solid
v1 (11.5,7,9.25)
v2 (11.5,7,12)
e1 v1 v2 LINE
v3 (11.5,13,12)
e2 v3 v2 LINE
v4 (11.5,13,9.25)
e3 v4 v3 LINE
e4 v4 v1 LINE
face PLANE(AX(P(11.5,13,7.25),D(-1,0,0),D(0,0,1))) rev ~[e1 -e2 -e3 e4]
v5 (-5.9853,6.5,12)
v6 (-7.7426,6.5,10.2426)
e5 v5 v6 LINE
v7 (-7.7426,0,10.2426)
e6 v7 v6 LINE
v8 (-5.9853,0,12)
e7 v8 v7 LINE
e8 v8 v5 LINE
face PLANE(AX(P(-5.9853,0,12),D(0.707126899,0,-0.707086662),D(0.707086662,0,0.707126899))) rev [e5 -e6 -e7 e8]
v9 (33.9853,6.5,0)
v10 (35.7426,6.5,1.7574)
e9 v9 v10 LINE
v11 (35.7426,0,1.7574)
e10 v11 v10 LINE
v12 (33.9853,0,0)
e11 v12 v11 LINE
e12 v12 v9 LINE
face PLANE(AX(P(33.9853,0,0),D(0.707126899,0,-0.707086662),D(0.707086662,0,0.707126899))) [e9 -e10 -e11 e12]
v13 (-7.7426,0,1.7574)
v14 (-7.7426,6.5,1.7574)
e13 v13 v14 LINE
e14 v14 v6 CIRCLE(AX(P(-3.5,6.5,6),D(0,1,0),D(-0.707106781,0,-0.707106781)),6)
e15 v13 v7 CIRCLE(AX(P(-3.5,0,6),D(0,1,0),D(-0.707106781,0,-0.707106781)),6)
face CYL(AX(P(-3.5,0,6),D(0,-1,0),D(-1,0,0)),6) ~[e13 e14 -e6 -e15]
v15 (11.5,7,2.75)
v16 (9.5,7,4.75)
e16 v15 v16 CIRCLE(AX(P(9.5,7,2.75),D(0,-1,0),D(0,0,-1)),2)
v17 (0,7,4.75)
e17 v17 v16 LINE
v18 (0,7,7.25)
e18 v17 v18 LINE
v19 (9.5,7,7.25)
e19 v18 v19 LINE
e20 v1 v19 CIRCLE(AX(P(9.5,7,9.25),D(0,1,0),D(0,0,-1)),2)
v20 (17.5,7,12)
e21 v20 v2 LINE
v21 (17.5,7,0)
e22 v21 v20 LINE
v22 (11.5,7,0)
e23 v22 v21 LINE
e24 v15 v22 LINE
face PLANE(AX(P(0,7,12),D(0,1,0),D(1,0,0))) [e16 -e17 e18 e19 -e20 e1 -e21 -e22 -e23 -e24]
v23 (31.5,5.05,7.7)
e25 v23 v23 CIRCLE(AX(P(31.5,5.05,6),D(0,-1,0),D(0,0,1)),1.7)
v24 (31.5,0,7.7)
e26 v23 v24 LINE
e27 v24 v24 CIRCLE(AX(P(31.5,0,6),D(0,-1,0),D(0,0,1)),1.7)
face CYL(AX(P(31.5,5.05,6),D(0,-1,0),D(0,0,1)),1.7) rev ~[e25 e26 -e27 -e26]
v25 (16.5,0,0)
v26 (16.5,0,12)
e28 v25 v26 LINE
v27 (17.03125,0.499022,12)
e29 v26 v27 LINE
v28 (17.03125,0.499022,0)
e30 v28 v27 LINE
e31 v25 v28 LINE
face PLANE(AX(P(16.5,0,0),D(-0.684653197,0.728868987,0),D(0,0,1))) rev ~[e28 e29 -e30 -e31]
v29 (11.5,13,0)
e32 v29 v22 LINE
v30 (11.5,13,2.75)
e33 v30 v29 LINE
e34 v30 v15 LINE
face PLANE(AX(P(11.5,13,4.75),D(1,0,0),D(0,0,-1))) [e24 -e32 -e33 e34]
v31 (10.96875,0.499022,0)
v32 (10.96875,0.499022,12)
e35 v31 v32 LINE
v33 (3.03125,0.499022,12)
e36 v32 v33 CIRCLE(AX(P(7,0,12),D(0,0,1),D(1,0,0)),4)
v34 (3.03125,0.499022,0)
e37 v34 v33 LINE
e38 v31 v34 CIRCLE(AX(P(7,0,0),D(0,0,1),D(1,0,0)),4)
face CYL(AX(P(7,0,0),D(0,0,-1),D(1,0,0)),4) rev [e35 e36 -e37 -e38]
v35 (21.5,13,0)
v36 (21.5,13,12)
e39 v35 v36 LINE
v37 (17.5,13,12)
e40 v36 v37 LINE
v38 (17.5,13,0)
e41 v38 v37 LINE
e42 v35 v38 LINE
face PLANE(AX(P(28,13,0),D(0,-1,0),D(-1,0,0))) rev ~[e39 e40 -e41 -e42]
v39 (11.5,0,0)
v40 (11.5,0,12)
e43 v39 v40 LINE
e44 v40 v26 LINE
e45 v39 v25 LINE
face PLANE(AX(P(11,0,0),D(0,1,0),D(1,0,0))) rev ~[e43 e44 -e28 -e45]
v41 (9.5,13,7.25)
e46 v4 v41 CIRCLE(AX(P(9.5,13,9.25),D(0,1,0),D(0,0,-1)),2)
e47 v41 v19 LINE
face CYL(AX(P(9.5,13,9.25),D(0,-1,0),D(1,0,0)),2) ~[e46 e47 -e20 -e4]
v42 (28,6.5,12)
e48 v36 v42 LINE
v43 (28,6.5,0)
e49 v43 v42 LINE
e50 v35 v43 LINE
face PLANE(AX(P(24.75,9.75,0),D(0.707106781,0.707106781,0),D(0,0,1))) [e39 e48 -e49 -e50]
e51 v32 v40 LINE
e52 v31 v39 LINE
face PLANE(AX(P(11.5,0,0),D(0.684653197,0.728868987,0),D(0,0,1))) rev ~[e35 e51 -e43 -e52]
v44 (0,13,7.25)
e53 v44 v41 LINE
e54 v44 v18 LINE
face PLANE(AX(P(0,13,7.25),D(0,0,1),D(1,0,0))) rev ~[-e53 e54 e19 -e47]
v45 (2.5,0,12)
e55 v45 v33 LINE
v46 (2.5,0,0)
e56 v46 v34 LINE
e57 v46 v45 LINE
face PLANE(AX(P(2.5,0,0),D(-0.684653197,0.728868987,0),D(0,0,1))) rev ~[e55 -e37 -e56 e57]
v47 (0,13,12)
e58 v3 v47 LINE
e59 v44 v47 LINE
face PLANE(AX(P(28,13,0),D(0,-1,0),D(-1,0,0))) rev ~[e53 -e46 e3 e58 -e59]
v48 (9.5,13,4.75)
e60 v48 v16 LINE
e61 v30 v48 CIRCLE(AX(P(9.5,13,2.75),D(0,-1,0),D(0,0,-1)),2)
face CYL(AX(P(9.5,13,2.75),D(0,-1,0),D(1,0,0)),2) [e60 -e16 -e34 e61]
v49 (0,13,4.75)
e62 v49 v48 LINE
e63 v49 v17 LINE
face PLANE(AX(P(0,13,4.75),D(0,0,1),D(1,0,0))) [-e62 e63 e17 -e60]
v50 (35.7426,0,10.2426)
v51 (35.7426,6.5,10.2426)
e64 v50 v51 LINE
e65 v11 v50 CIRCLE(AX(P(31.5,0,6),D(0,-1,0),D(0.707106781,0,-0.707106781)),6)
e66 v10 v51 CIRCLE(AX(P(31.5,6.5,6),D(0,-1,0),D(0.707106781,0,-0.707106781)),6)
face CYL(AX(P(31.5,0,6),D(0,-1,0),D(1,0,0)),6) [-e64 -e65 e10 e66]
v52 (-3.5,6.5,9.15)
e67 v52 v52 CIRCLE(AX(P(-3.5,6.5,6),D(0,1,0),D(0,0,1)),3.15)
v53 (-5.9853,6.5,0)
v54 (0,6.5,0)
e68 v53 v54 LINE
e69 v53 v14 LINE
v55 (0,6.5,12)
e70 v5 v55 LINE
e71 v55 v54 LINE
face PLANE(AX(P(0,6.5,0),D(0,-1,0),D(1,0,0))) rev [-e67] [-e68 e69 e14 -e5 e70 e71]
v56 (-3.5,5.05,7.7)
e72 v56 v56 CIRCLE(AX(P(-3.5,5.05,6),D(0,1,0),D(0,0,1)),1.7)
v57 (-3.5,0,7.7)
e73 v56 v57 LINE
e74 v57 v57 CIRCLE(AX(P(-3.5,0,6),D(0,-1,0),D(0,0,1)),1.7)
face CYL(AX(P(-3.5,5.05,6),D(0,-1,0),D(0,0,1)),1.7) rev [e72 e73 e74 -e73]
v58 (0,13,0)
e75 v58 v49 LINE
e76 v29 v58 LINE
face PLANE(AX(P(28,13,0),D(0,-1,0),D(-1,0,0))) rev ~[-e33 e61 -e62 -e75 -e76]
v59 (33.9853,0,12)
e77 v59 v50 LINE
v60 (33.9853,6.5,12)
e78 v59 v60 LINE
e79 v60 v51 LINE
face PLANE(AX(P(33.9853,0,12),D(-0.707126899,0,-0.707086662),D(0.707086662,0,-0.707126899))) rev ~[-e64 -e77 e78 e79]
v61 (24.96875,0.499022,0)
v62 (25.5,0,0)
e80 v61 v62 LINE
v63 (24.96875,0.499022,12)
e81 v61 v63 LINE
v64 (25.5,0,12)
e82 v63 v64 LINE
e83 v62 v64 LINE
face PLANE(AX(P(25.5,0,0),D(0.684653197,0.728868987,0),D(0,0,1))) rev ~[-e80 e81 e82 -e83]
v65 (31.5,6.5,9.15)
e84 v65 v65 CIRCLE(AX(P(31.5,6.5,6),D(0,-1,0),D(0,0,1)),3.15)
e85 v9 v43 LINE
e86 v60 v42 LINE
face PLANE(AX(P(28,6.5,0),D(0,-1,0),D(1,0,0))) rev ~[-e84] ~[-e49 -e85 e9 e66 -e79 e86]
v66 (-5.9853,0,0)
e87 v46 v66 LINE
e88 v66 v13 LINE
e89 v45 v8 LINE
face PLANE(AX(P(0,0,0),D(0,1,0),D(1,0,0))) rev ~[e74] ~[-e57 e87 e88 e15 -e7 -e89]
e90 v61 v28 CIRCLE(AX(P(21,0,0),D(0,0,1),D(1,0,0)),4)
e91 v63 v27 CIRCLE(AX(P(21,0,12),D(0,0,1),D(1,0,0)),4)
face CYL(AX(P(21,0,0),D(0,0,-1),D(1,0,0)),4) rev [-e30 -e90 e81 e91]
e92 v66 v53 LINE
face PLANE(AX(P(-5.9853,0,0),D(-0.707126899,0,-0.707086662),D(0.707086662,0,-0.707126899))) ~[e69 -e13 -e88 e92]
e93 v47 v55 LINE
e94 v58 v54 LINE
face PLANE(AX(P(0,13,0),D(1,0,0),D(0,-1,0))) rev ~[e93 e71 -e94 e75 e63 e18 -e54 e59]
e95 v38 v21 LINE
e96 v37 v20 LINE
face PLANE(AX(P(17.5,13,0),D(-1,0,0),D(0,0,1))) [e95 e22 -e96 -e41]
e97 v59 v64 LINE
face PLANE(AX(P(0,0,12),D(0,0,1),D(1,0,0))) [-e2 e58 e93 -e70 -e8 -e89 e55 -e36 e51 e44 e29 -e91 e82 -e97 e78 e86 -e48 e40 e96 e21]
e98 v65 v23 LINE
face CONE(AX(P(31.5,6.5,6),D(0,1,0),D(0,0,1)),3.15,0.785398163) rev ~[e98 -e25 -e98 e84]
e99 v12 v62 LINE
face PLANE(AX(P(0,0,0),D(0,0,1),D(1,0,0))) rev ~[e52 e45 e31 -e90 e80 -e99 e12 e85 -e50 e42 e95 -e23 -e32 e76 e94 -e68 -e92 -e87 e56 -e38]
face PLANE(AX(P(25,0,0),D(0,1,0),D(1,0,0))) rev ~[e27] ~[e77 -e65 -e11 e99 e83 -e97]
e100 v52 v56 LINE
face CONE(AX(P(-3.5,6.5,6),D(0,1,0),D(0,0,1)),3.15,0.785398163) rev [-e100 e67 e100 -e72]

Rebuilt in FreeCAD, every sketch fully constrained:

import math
import FreeCAD as App
import Part
import Sketcher


def edges_at(feature, points):
    """Names of the edges that pass closest to the given points."""
    edges = feature.Shape.Edges
    near = lambda p: min(range(len(edges)), key=lambda i: edges[i].distToShape(Part.Vertex(*p))[0])
    return sorted({f"Edge{near(p) + 1}" for p in points})


def add_polygon(sketch, points):
    """Adds a closed chain of lines whose ends are joined by coincident constraints."""
    first, n = sketch.GeometryCount, len(points)
    for a, b in zip(points, points[1:] + points[:1]):
        sketch.addGeometry(Part.LineSegment(App.Vector(*a, 0), App.Vector(*b, 0)), False)
    for i in range(n):
        sketch.addConstraint(Sketcher.Constraint("Coincident", first + i, 2, first + (i + 1) % n, 1))

doc = App.newDocument("Part")
body = doc.addObject("PartDesign::Body", "Body")

sketch1 = body.newObject("Sketcher::SketchObject", "Sketch")
sketch1.AttachmentSupport = (doc.getObject("XY_Plane"), [""])
sketch1.MapMode = "FlatFace"
sketch1.addGeometry(Part.ArcOfCircle(Part.Circle(App.Vector(21, 0, 0), App.Vector(0, 0, 1), 4), math.radians(0), math.radians(180)), False)
sketch1.addGeometry(Part.LineSegment(App.Vector(25, 0, 0), App.Vector(28, 0, 0)), False)
sketch1.addGeometry(Part.LineSegment(App.Vector(28, 0, 0), App.Vector(28, 13, 0)), False)
sketch1.addGeometry(Part.LineSegment(App.Vector(28, 13, 0), App.Vector(0, 13, 0)), False)
sketch1.addGeometry(Part.LineSegment(App.Vector(0, 13, 0), App.Vector(0, 0, 0)), False)
sketch1.addGeometry(Part.LineSegment(App.Vector(0, 0, 0), App.Vector(3, 0, 0)), False)
sketch1.addGeometry(Part.ArcOfCircle(Part.Circle(App.Vector(7, 0, 0), App.Vector(0, 0, 1), 4), math.radians(0), math.radians(180)), False)
sketch1.addGeometry(Part.LineSegment(App.Vector(11, 0, 0), App.Vector(17, 0, 0)), False)
sketch1.addConstraint(Sketcher.Constraint("Coincident", 0, 1, 1, 1))
sketch1.addConstraint(Sketcher.Constraint("Coincident", 1, 2, 2, 1))
sketch1.addConstraint(Sketcher.Constraint("Coincident", 2, 2, 3, 1))
sketch1.addConstraint(Sketcher.Constraint("Coincident", 3, 2, 4, 1))
sketch1.addConstraint(Sketcher.Constraint("Coincident", 4, 2, 5, 1))
sketch1.addConstraint(Sketcher.Constraint("Coincident", 5, 2, 6, 2))
sketch1.addConstraint(Sketcher.Constraint("Coincident", 6, 1, 7, 1))
sketch1.addConstraint(Sketcher.Constraint("Coincident", 7, 2, 0, 2))
sketch1.addConstraint(Sketcher.Constraint("Horizontal", 1))
sketch1.addConstraint(Sketcher.Constraint("Vertical", 2))
sketch1.addConstraint(Sketcher.Constraint("Horizontal", 3))
sketch1.addConstraint(Sketcher.Constraint("Vertical", 4))
sketch1.addConstraint(Sketcher.Constraint("Horizontal", 5))
sketch1.addConstraint(Sketcher.Constraint("Horizontal", 7))
sketch1.addConstraint(Sketcher.Constraint("Coincident", 4, 2, -1, 1))
sketch1.addConstraint(Sketcher.Constraint("Equal", 0, 6))
sketch1.addConstraint(Sketcher.Constraint("PointOnObject", 0, 3, -1))
sketch1.addConstraint(Sketcher.Constraint("PointOnObject", 6, 3, -1))
sketch1.addConstraint(Sketcher.Constraint("PointOnObject", 0, 1, -1))
sketch1.addConstraint(Sketcher.Constraint("PointOnObject", 6, 1, -1))
sketch1.addConstraint(Sketcher.Constraint("Equal", 1, 5))
sketch1.addConstraint(Sketcher.Constraint("Radius", 0, 4.0))
sketch1.addConstraint(Sketcher.Constraint("DistanceX", 3, 2, 3, 1, 28.0))
sketch1.addConstraint(Sketcher.Constraint("DistanceY", 2, 1, 2, 2, 13.0))
sketch1.addConstraint(Sketcher.Constraint("DistanceX", -1, 1, 6, 3, 7.0))
pad1 = body.newObject("PartDesign::Pad", "Pad")
pad1.Profile = sketch1
pad1.Length = 12
doc.recompute()

chamfer = body.newObject("PartDesign::Chamfer", "Chamfer")
chamfer.Base = (pad1, edges_at(pad1, [(28, 13, 6)]))
chamfer.Size = 6.5

sketch2 = body.newObject("Sketcher::SketchObject", "Sketch001")
sketch2.AttachmentSupport = (doc.getObject("XZ_Plane"), [""])
sketch2.MapMode = "FlatFace"
sketch2.AttachmentOffset = App.Placement(App.Vector(0, 0, -13), App.Rotation())
add_polygon(sketch2, [(11.5, 4.8), (0, 4.8), (0, 7.2), (11.5, 7.2), (11.5, 12), (17.5, 12), (17.5, 0), (11.5, 0)])
sketch2.addConstraint(Sketcher.Constraint("Horizontal", 0))
sketch2.addConstraint(Sketcher.Constraint("Vertical", 1))
sketch2.addConstraint(Sketcher.Constraint("Horizontal", 2))
sketch2.addConstraint(Sketcher.Constraint("Vertical", 3))
sketch2.addConstraint(Sketcher.Constraint("Horizontal", 4))
sketch2.addConstraint(Sketcher.Constraint("Vertical", 5))
sketch2.addConstraint(Sketcher.Constraint("Horizontal", 6))
sketch2.addConstraint(Sketcher.Constraint("Vertical", 7))
sketch2.addConstraint(Sketcher.Constraint("PointOnObject", 0, 2, -2))
sketch2.addConstraint(Sketcher.Constraint("PointOnObject", 5, 2, -1))
sketch2.addConstraint(Sketcher.Constraint("Vertical", 3, 2, 6, 2))
sketch2.addConstraint(Sketcher.Constraint("Equal", 3, 7))
sketch2.addConstraint(Sketcher.Constraint("DistanceX", 4, 1, 4, 2, 6.0))
sketch2.addConstraint(Sketcher.Constraint("DistanceX", 0, 2, 0, 1, 11.5))
sketch2.addConstraint(Sketcher.Constraint("DistanceY", 1, 1, 1, 2, 2.5))
sketch2.addConstraint(Sketcher.Constraint("DistanceY", 5, 2, 5, 1, 12.0))
pocket1 = body.newObject("PartDesign::Pocket", "Pocket")
pocket1.Profile = sketch2
pocket1.Length = 6
pocket1.Reversed = True
doc.recompute()

fillet = body.newObject("PartDesign::Fillet", "Fillet")
fillet.Base = (pocket1, edges_at(pocket1, [(11.5, 10, 4.75), (11.5, 10, 7.25)]))
fillet.Radius = 2
doc.recompute()

chamfer2 = body.newObject("PartDesign::Chamfer", "Chamfer001")
chamfer2.Base = (fillet, edges_at(fillet, [
    (3, 0, 6),
    (11, 0, 6),
    (17, 0, 6),
    (25, 0, 6),
]))
chamfer2.Size = 0.5

sketch3 = body.newObject("Sketcher::SketchObject", "Sketch002")
sketch3.AttachmentSupport = (doc.getObject("XZ_Plane"), [""])
sketch3.MapMode = "FlatFace"
sketch3.addGeometry(Part.LineSegment(App.Vector(35.7, 10.2, 0), App.Vector(34, 12, 0)), False)
sketch3.addGeometry(Part.LineSegment(App.Vector(34, 12, 0), App.Vector(28, 12, 0)), False)
sketch3.addGeometry(Part.LineSegment(App.Vector(28, 12, 0), App.Vector(28, 0, 0)), False)
sketch3.addGeometry(Part.LineSegment(App.Vector(28, 0, 0), App.Vector(34, 0, 0)), False)
sketch3.addGeometry(Part.LineSegment(App.Vector(34, 0, 0), App.Vector(35.7, 1.8, 0)), False)
sketch3.addGeometry(Part.ArcOfCircle(Part.Circle(App.Vector(31.5, 6, 0), App.Vector(0, 0, 1), 6), math.radians(-45), math.radians(45)), False)
sketch3.addConstraint(Sketcher.Constraint("Coincident", 0, 2, 1, 1))
sketch3.addConstraint(Sketcher.Constraint("Coincident", 1, 2, 2, 1))
sketch3.addConstraint(Sketcher.Constraint("Coincident", 2, 2, 3, 1))
sketch3.addConstraint(Sketcher.Constraint("Coincident", 3, 2, 4, 1))
sketch3.addConstraint(Sketcher.Constraint("Tangent", 4, 2, 5, 1))
sketch3.addConstraint(Sketcher.Constraint("Tangent", 5, 2, 0, 1))
sketch3.addConstraint(Sketcher.Constraint("Horizontal", 1))
sketch3.addConstraint(Sketcher.Constraint("Vertical", 2))
sketch3.addConstraint(Sketcher.Constraint("Horizontal", 3))
sketch3.addConstraint(Sketcher.Constraint("PointOnObject", 2, 2, -1))
sketch3.addConstraint(Sketcher.Constraint("Perpendicular", 0, 4))
sketch3.addConstraint(Sketcher.Constraint("Vertical", 0, 2, 3, 2))
sketch3.addConstraint(Sketcher.Constraint("Vertical", 4, 2, 5, 2))
sketch3.addConstraint(Sketcher.Constraint("Radius", 5, 6.0))
sketch3.addConstraint(Sketcher.Constraint("DistanceY", 2, 2, 2, 1, 12.0))
sketch3.addConstraint(Sketcher.Constraint("DistanceX", -1, 1, 1, 2, 28.0))
sketch3.addConstraint(Sketcher.Constraint("DistanceX", -1, 1, 5, 3, 31.5))
pad2 = body.newObject("PartDesign::Pad", "Pad001")
pad2.Profile = sketch3
pad2.Length = 6.5
pad2.Reversed = True

sketch4 = body.newObject("Sketcher::SketchObject", "Sketch003")
sketch4.AttachmentSupport = (doc.getObject("XZ_Plane"), [""])
sketch4.MapMode = "FlatFace"
sketch4.AttachmentOffset = App.Placement(App.Vector(0, 0, -6.5), App.Rotation())
sketch4.addGeometry(Part.Circle(App.Vector(31.5, 6, 0), App.Vector(0, 0, 1), 1.7), False)
sketch4.addConstraint(Sketcher.Constraint("Diameter", 0, 3.4))
sketch4.addConstraint(Sketcher.Constraint("DistanceY", -1, 1, 0, 3, 6.0))
sketch4.addConstraint(Sketcher.Constraint("DistanceX", -1, 1, 0, 3, 31.5))
doc.recompute()
hole = body.newObject("PartDesign::Hole", "Hole")
hole.Profile = sketch4
hole.ThreadType = "None"
hole.Diameter = 3.4
hole.DepthType = "Dimension"
hole.Depth = 8
hole.DrillPoint = "Flat"
hole.HoleCutType = "Countersink"
hole.HoleCutDiameter = 6.3
hole.HoleCutCountersinkAngle = 90
hole.Reversed = True
doc.recompute()

datumplane = body.newObject("PartDesign::Plane", "DatumPlane")
datumplane.AttachmentSupport = (doc.getObject("YZ_Plane"), [""])
datumplane.MapMode = "FlatFace"
datumplane.AttachmentOffset = App.Placement(App.Vector(0, 0, 14), App.Rotation())
mirrored = body.newObject("PartDesign::Mirrored", "Mirrored")
mirrored.Originals = [pad2, hole]
mirrored.MirrorPlane = (datumplane, [""])
body.Tip = mirrored

doc.recompute()
